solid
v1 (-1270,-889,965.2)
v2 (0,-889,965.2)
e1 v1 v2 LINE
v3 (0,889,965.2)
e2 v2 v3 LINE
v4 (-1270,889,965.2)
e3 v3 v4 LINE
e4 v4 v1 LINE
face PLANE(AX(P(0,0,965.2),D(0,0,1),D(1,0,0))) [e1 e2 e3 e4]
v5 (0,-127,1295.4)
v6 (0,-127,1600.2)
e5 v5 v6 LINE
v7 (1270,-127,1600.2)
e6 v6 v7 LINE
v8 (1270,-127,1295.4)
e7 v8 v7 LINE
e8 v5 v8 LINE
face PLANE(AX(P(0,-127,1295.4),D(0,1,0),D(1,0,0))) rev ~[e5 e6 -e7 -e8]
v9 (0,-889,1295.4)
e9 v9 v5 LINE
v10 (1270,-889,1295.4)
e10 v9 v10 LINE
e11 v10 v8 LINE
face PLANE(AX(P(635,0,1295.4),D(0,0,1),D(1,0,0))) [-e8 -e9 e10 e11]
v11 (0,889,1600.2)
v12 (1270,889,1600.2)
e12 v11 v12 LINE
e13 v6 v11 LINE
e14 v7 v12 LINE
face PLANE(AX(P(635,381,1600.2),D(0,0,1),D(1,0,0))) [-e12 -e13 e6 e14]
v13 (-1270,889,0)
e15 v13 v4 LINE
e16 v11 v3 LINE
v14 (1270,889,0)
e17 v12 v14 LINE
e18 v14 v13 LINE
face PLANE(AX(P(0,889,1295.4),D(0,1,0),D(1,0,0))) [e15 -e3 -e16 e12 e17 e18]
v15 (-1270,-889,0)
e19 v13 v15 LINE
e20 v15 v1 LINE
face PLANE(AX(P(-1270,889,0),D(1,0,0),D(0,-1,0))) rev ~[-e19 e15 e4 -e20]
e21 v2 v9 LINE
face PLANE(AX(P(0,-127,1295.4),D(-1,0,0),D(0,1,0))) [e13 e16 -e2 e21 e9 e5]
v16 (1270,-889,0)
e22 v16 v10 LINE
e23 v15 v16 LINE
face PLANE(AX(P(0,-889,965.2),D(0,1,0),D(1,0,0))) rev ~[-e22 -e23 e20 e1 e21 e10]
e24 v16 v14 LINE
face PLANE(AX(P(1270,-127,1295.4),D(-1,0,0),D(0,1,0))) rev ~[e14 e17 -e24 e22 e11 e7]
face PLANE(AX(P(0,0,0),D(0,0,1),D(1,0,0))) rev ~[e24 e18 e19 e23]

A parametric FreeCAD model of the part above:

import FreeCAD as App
import Part
import Sketcher
Q = App.Units.Quantity


def add_polygon(sketch, points):
    """Adds a closed chain of lines whose ends are joined by coincident constraints."""
    first, n = sketch.GeometryCount, len(points)
    for a, b in zip(points, points[1:] + points[:1]):
        sketch.addGeometry(Part.LineSegment(App.Vector(*a, 0), App.Vector(*b, 0)), False)
    for i in range(n):
        sketch.addConstraint(Sketcher.Constraint("Coincident", first + i, 2, first + (i + 1) % n, 1))

doc = App.newDocument("Part")
body = doc.addObject("PartDesign::Body", "Body")

# Sketch on XY plane
sketch1 = doc.addObject("Sketcher::SketchObject", "Sketch")
body.addObject(sketch1)
sketch1.AttachmentSupport = (doc.XY_Plane, [""])
sketch1.MapMode = "FlatFace"
add_polygon(sketch1, [(-1270, -889), (1270, -889), (1270, 889), (-1270, 889)])  # lines 0-3
sketch1.addConstraint([
    Sketcher.Constraint("Horizontal", 0),
    Sketcher.Constraint("Vertical", 1),
    Sketcher.Constraint("Horizontal", 2),
    Sketcher.Constraint("Vertical", 3),
    Sketcher.Constraint("Symmetric", 0, 2, 2, 2, -1, 1),
    Sketcher.Constraint("DistanceX", 0, 1, 0, 2, Q("100 in")),
    Sketcher.Constraint("DistanceY", 1, 1, 1, 2, Q("70 in")),
])
pad1 = doc.addObject("PartDesign::Pad", "Pad")
body.addObject(pad1)
pad1.Profile = sketch1
pad1.Length = Q("38 in")

# Sketch on XY plane
sketch2 = doc.addObject("Sketcher::SketchObject", "Sketch001")
body.addObject(sketch2)
sketch2.AttachmentSupport = (doc.XY_Plane, [""])
sketch2.MapMode = "FlatFace"
sketch2.AttachmentOffset = App.Placement(App.Vector(0, 0, 38 * 25.4), App.Rotation())
add_polygon(sketch2, [(0, 889), (0, -889), (1270, -889), (1270, 889)])  # lines 0-3
sketch2.addConstraint([
    Sketcher.Constraint("Vertical", 0),
    Sketcher.Constraint("Horizontal", 1),
    Sketcher.Constraint("Vertical", 2),
    Sketcher.Constraint("Horizontal", 3),
    Sketcher.Constraint("Symmetric", 0, 2, 3, 2, -1, 1),
    Sketcher.Constraint("DistanceX", 1, 1, 1, 2, Q("50 in")),
    Sketcher.Constraint("DistanceY", 0, 2, 0, 1, Q("70 in")),
])
pad2 = doc.addObject("PartDesign::Pad", "Pad001")
body.addObject(pad2)
pad2.Profile = sketch2
pad2.Length = Q("13 in")

# Sketch on XY plane
sketch3 = doc.addObject("Sketcher::SketchObject", "Sketch002")
body.addObject(sketch3)
sketch3.AttachmentSupport = (doc.XY_Plane, [""])
sketch3.MapMode = "FlatFace"
sketch3.AttachmentOffset = App.Placement(App.Vector(0, 0, 51 * 25.4), App.Rotation())
add_polygon(sketch3, [(0, 889), (0, -127), (1270, -127), (1270, 889)])  # lines 0-3
sketch3.addConstraint([
    Sketcher.Constraint("Vertical", 0),
    Sketcher.Constraint("Horizontal", 1),
    Sketcher.Constraint("Vertical", 2),
    Sketcher.Constraint("Horizontal", 3),
    Sketcher.Constraint("PointOnObject", 0, 2, -2),
    Sketcher.Constraint("DistanceX", 1, 1, 1, 2, Q("50 in")),
    Sketcher.Constraint("DistanceY", 0, 2, 0, 1, Q("40 in")),
    Sketcher.Constraint("DistanceY", 0, 2, -1, 1, Q("5 in")),
])
pad3 = doc.addObject("PartDesign::Pad", "Pad002")
body.addObject(pad3)
pad3.Profile = sketch3
pad3.Length = Q("12 in")

doc.recompute()
